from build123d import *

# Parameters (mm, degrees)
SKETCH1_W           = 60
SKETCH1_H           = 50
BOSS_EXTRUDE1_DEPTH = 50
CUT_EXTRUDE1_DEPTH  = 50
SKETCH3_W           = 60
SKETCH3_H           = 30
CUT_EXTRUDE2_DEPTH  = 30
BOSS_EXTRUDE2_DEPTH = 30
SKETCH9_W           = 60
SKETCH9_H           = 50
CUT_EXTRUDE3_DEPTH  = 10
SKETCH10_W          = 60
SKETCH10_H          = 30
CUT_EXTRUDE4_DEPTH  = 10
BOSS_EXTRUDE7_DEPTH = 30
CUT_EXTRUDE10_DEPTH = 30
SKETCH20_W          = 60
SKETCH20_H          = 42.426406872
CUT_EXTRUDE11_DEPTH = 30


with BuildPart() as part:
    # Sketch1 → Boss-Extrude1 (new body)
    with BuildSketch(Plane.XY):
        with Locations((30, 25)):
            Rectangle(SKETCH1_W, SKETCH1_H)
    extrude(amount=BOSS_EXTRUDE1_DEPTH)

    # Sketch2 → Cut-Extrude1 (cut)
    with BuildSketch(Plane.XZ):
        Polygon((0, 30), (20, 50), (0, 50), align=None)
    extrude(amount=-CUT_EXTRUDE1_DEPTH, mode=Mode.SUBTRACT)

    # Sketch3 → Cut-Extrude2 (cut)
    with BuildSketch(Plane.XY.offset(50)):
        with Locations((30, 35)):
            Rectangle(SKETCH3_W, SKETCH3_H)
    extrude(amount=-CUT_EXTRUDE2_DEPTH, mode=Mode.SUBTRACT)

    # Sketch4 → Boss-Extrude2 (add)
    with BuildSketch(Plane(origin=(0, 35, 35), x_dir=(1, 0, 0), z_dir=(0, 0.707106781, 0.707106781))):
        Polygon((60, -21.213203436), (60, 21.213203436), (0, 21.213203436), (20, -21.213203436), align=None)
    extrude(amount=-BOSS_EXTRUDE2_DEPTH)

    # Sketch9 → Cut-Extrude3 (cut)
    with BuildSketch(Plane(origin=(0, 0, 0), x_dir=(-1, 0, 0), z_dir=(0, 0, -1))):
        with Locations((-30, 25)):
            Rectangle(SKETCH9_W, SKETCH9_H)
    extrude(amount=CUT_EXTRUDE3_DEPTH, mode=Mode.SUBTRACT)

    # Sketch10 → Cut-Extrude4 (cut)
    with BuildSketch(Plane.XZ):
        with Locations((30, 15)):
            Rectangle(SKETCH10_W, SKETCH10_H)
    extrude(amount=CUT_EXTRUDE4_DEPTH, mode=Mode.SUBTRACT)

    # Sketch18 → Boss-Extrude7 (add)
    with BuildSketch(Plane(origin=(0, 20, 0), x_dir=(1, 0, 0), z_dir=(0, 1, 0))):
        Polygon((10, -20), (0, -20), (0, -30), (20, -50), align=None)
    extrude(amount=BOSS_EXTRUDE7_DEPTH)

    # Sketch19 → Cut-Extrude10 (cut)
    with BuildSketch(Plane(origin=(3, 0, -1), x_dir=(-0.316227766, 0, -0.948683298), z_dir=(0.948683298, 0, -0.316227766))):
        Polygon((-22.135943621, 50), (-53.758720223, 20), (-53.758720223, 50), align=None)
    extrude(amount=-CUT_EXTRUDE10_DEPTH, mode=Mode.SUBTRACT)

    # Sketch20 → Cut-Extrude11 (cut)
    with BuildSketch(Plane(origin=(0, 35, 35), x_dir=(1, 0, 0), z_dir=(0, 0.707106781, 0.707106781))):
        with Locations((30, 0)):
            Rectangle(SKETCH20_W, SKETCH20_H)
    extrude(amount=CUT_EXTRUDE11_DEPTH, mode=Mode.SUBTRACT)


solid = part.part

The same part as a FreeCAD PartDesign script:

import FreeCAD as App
import Part
import Sketcher
from FreeCAD import Vector
Q = App.Units.Quantity


def add_polygon(sketch, points):
    """Adds a closed chain of lines whose ends are joined by coincident constraints."""
    first, n = sketch.GeometryCount, len(points)
    for a, b in zip(points, points[1:] + points[:1]):
        sketch.addGeometry(Part.LineSegment(App.Vector(*a, 0), App.Vector(*b, 0)), False)
    for i in range(n):
        sketch.addConstraint(Sketcher.Constraint("Coincident", first + i, 2, first + (i + 1) % n, 1))

doc = App.newDocument("Part")
body = doc.addObject("PartDesign::Body", "Body")

sketch1 = body.newObject("Sketcher::SketchObject", "Sketch")
sketch1.AttachmentSupport = (doc.getObject("XY_Plane"), [""])
sketch1.MapMode = "FlatFace"
add_polygon(sketch1, [(0, 50), (0, 0), (60, 0), (60, 50)])
sketch1.addConstraint(Sketcher.Constraint("Vertical", 0))
sketch1.addConstraint(Sketcher.Constraint("Horizontal", 1))
sketch1.addConstraint(Sketcher.Constraint("Vertical", 2))
sketch1.addConstraint(Sketcher.Constraint("Horizontal", 3))
sketch1.addConstraint(Sketcher.Constraint("Coincident", 0, 2, -1, 1))
sketch1.addConstraint(Sketcher.Constraint("DistanceX", 1, 1, 1, 2, 60.0))
sketch1.addConstraint(Sketcher.Constraint("DistanceY", 0, 2, 0, 1, 50.0))
pad1 = body.newObject("PartDesign::Pad", "Pad")
pad1.Profile = sketch1
pad1.Length = 50

sketch2 = body.newObject("Sketcher::SketchObject", "Sketch001")
sketch2.AttachmentSupport = (doc.getObject("XZ_Plane"), [""])
sketch2.MapMode = "FlatFace"
add_polygon(sketch2, [(0, 30), (20, 50), (0, 50)])
sketch2.addConstraint(Sketcher.Constraint("Horizontal", 1))
sketch2.addConstraint(Sketcher.Constraint("Vertical", 2))
sketch2.addConstraint(Sketcher.Constraint("PointOnObject", 1, 2, -2))
sketch2.addConstraint(Sketcher.Constraint("Equal", 1, 2))
sketch2.addConstraint(Sketcher.Constraint("DistanceX", 1, 2, 1, 1, 20.0))
sketch2.addConstraint(Sketcher.Constraint("DistanceY", -1, 1, 0, 2, 50.0))
pocket1 = body.newObject("PartDesign::Pocket", "Pocket")
pocket1.Profile = sketch2
pocket1.Length = 50

sketch3 = body.newObject("Sketcher::SketchObject", "Sketch002")
sketch3.AttachmentSupport = (doc.getObject("XY_Plane"), [""])
sketch3.MapMode = "FlatFace"
sketch3.AttachmentOffset = App.Placement(Vector(0, 0, 50), App.Rotation())
add_polygon(sketch3, [(0, 50), (0, 20), (60, 20), (60, 50)])
sketch3.addConstraint(Sketcher.Constraint("Vertical", 0))
sketch3.addConstraint(Sketcher.Constraint("Horizontal", 1))
sketch3.addConstraint(Sketcher.Constraint("Vertical", 2))
sketch3.addConstraint(Sketcher.Constraint("Horizontal", 3))
sketch3.addConstraint(Sketcher.Constraint("PointOnObject", 0, 2, -2))
sketch3.addConstraint(Sketcher.Constraint("DistanceX", 1, 1, 1, 2, 60.0))
sketch3.addConstraint(Sketcher.Constraint("DistanceY", 0, 2, 0, 1, 30.0))
sketch3.addConstraint(Sketcher.Constraint("DistanceY", -1, 1, 0, 2, 20.0))
pocket2 = body.newObject("PartDesign::Pocket", "Pocket001")
pocket2.Profile = sketch3
pocket2.Length = 30

sketch4 = body.newObject("Sketcher::SketchObject", "Sketch003")
sketch4.Placement = App.Placement(Vector(0, 35, 35), App.Rotation(Vector(1, 0, 0), Vector(0, 0.707106781, -0.707106781), Vector(0, 0.707106781, 0.707106781), "ZXY"))
add_polygon(sketch4, [(60, -21), (60, 21), (0, 21), (20, -21)])
sketch4.addConstraint(Sketcher.Constraint("Vertical", 0))
sketch4.addConstraint(Sketcher.Constraint("Horizontal", 1))
sketch4.addConstraint(Sketcher.Constraint("Horizontal", 3))
sketch4.addConstraint(Sketcher.Constraint("PointOnObject", 1, 2, -2))
sketch4.addConstraint(Sketcher.Constraint("DistanceX", 1, 2, 1, 1, 60.0))
sketch4.addConstraint(Sketcher.Constraint("DistanceX", 3, 1, 3, 2, 40.0))
sketch4.addConstraint(Sketcher.Constraint("DistanceY", 0, 1, 0, 2, 42.426407))
sketch4.addConstraint(Sketcher.Constraint("DistanceY", -1, 1, 0, 2, 21.213203))
pad2 = body.newObject("PartDesign::Pad", "Pad001")
pad2.Profile = sketch4
pad2.Length = 30
pad2.Reversed = True

sketch5 = body.newObject("Sketcher::SketchObject", "Sketch004")
sketch5.AttachmentSupport = (doc.getObject("XY_Plane"), [""])
sketch5.MapMode = "FlatFace"
add_polygon(sketch5, [(60, 50), (60, 0), (0, 0), (0, 50)])
sketch5.addConstraint(Sketcher.Constraint("Vertical", 0))
sketch5.addConstraint(Sketcher.Constraint("Horizontal", 1))
sketch5.addConstraint(Sketcher.Constraint("Vertical", 2))
sketch5.addConstraint(Sketcher.Constraint("Horizontal", 3))
sketch5.addConstraint(Sketcher.Constraint("Coincident", 1, 2, -1, 1))
sketch5.addConstraint(Sketcher.Constraint("DistanceX", 1, 2, 1, 1, 60.0))
sketch5.addConstraint(Sketcher.Constraint("DistanceY", 0, 2, 0, 1, 50.0))
pocket3 = body.newObject("PartDesign::Pocket", "Pocket002")
pocket3.Profile = sketch5
pocket3.Length = 10

sketch6 = body.newObject("Sketcher::SketchObject", "Sketch005")
sketch6.AttachmentSupport = (doc.getObject("XZ_Plane"), [""])
sketch6.MapMode = "FlatFace"
add_polygon(sketch6, [(0, 30), (0, 0), (60, 0), (60, 30)])
sketch6.addConstraint(Sketcher.Constraint("Vertical", 0))
sketch6.addConstraint(Sketcher.Constraint("Horizontal", 1))
sketch6.addConstraint(Sketcher.Constraint("Vertical", 2))
sketch6.addConstraint(Sketcher.Constraint("Horizontal", 3))
sketch6.addConstraint(Sketcher.Constraint("Coincident", 0, 2, -1, 1))
sketch6.addConstraint(Sketcher.Constraint("DistanceX", 1, 1, 1, 2, 60.0))
sketch6.addConstraint(Sketcher.Constraint("DistanceY", 0, 2, 0, 1, 30.0))
pocket4 = body.newObject("PartDesign::Pocket", "Pocket003")
pocket4.Profile = sketch6
pocket4.Length = 10
pocket4.Reversed = True

sketch7 = body.newObject("Sketcher::SketchObject", "Sketch006")
sketch7.AttachmentSupport = (doc.getObject("XZ_Plane"), [""])
sketch7.MapMode = "FlatFace"
sketch7.AttachmentOffset = App.Placement(Vector(0, 0, -20), App.Rotation())
add_polygon(sketch7, [(10, 20), (0, 20), (0, 30), (20, 50)])
sketch7.addConstraint(Sketcher.Constraint("Horizontal", 0))
sketch7.addConstraint(Sketcher.Constraint("Vertical", 1))
sketch7.addConstraint(Sketcher.Constraint("PointOnObject", 0, 2, -2))
sketch7.addConstraint(Sketcher.Constraint("Equal", 0, 1))
sketch7.addConstraint(Sketcher.Constraint("DistanceX", 0, 2, 0, 1, 10.0))
sketch7.addConstraint(Sketcher.Constraint("Angle", 2, Q("45 deg")))
sketch7.addConstraint(Sketcher.Constraint("DistanceY", -1, 1, 0, 2, 20.0))
sketch7.addConstraint(Sketcher.Constraint("DistanceX", -1, 1, 2, 2, 20.0))
pad3 = body.newObject("PartDesign::Pad", "Pad002")
pad3.Profile = sketch7
pad3.Length = 30
pad3.Reversed = True

sketch8 = body.newObject("Sketcher::SketchObject", "Sketch007")
sketch8.Placement = App.Placement(Vector(3, 0, -1), App.Rotation(Vector(-0.316227766, 0, -0.948683298), Vector(0, 1, 0), Vector(0.948683298, 0, -0.316227766), "ZXY"))
add_polygon(sketch8, [(-54, 20), (-22, 50), (-54, 50)])
sketch8.addConstraint(Sketcher.Constraint("Horizontal", 1))
sketch8.addConstraint(Sketcher.Constraint("Vertical", 2))
sketch8.addConstraint(Sketcher.Constraint("DistanceY", 2, 2, 2, 1, 30.0))
sketch8.addConstraint(Sketcher.Constraint("DistanceY", -1, 1, 0, 2, 50.0))
sketch8.addConstraint(Sketcher.Constraint("Distance", 0, 43.588989))
sketch8.addConstraint(Sketcher.Constraint("DistanceX", 1, 2, -1, 1, 53.75872))
pocket5 = body.newObject("PartDesign::Pocket", "Pocket004")
pocket5.Profile = sketch8
pocket5.Length = 30

sketch9 = body.newObject("Sketcher::SketchObject", "Sketch008")
sketch9.Placement = App.Placement(Vector(0, 35, 35), App.Rotation(Vector(1, 0, 0), Vector(0, 0.707106781, -0.707106781), Vector(0, 0.707106781, 0.707106781), "ZXY"))
add_polygon(sketch9, [(0, 21), (0, -21), (60, -21), (60, 21)])
sketch9.addConstraint(Sketcher.Constraint("Vertical", 0))
sketch9.addConstraint(Sketcher.Constraint("Horizontal", 1))
sketch9.addConstraint(Sketcher.Constraint("Vertical", 2))
sketch9.addConstraint(Sketcher.Constraint("Horizontal", 3))
sketch9.addConstraint(Sketcher.Constraint("Symmetric", 0, 2, 3, 2, -1, 1))
sketch9.addConstraint(Sketcher.Constraint("DistanceX", 1, 1, 1, 2, 60.0))
sketch9.addConstraint(Sketcher.Constraint("DistanceY", 0, 2, 0, 1, 42.426407))
pocket6 = body.newObject("PartDesign::Pocket", "Pocket005")
pocket6.Profile = sketch9
pocket6.Length = 30
pocket6.Reversed = True

doc.recompute()
